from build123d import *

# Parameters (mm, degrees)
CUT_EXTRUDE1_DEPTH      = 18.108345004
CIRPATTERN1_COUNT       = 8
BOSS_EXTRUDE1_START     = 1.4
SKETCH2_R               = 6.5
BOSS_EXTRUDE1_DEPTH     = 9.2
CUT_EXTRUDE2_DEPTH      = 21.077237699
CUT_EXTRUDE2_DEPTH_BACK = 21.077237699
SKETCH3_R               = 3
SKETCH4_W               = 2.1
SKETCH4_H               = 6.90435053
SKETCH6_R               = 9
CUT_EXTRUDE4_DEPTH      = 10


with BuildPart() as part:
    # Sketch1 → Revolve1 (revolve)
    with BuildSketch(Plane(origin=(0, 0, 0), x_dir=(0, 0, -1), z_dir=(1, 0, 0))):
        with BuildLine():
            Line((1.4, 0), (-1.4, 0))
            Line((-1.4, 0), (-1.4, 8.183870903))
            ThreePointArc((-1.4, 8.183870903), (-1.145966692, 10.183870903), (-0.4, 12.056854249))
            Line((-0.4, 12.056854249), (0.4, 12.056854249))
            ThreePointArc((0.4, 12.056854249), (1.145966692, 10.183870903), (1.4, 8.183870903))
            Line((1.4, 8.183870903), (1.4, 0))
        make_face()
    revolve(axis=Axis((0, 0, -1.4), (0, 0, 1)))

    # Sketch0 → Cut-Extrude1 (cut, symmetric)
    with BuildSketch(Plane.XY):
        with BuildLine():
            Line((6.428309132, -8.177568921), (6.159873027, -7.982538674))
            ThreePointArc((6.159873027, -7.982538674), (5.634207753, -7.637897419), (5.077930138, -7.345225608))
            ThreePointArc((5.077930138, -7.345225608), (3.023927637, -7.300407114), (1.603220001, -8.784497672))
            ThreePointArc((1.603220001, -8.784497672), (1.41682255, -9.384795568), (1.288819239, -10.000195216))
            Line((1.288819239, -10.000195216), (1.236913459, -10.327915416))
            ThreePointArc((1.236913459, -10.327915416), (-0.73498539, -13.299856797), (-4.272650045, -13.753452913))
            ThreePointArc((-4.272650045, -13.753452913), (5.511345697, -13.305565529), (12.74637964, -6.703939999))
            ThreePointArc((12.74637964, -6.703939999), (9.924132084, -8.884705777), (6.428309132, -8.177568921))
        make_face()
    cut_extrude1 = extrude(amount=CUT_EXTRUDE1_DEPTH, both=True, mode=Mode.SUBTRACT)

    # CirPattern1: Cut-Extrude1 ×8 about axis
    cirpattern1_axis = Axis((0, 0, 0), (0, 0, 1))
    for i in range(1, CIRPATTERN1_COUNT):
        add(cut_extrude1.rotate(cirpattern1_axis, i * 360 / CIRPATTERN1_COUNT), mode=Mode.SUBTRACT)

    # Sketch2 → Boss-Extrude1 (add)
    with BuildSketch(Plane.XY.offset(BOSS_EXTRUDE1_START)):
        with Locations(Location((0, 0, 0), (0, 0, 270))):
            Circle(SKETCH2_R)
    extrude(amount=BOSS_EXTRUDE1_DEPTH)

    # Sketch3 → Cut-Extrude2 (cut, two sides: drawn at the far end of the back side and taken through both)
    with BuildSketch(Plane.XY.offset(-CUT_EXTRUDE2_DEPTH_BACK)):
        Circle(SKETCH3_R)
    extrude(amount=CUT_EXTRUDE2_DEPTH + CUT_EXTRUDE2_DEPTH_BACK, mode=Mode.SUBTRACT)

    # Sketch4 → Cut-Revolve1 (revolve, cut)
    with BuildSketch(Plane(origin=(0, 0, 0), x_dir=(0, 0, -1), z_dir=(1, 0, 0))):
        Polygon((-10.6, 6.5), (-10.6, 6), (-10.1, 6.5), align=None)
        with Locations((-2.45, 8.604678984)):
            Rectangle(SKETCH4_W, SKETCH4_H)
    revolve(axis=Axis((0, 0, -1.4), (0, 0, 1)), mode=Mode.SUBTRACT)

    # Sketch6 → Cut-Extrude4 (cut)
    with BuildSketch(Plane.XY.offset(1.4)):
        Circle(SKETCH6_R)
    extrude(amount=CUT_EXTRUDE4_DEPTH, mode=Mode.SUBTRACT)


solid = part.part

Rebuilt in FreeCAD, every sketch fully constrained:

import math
import FreeCAD as App
import Part
import Sketcher

V = App.Vector
Q = App.Units.Quantity


def add_polygon(sketch, points):
    """Adds a closed chain of lines whose ends are joined by coincident constraints."""
    first, n = sketch.GeometryCount, len(points)
    for a, b in zip(points, points[1:] + points[:1]):
        sketch.addGeometry(Part.LineSegment(App.Vector(*a, 0), App.Vector(*b, 0)), False)
    for i in range(n):
        sketch.addConstraint(Sketcher.Constraint("Coincident", first + i, 2, first + (i + 1) % n, 1))

doc = App.newDocument("Part")
body = doc.addObject("PartDesign::Body", "Body")

sketch1 = body.newObject("Sketcher::SketchObject", "Sketch")
sketch1.AttachmentSupport = (doc.getObject("YZ_Plane"), [""])
sketch1.MapMode = "FlatFace"
sketch1.addGeometry(Part.LineSegment(V(0, 1.4, 0), V(0, -1.4, 0)), False)
sketch1.addGeometry(Part.LineSegment(V(0, -1.4, 0), V(8.183871, -1.4, 0)), False)
sketch1.addGeometry(Part.ArcOfCircle(Part.Circle(V(8.183871, 6.6, 0), V(0, 0, 1), 8), math.radians(-90), math.radians(-61.044976)), False)
sketch1.addGeometry(Part.LineSegment(V(12.056854, -0.4, 0), V(12.056854, 0.4, 0)), False)
sketch1.addGeometry(Part.ArcOfCircle(Part.Circle(V(8.183871, -6.6, 0), V(0, 0, 1), 8), math.radians(61.044976), math.radians(90)), False)
sketch1.addGeometry(Part.LineSegment(V(8.183871, 1.4, 0), V(0, 1.4, 0)), False)
sketch1.addConstraint(Sketcher.Constraint("Coincident", 0, 2, 1, 1))
sketch1.addConstraint(Sketcher.Constraint("Tangent", 1, 2, 2, 1))
sketch1.addConstraint(Sketcher.Constraint("Coincident", 2, 2, 3, 1))
sketch1.addConstraint(Sketcher.Constraint("Coincident", 3, 2, 4, 1))
sketch1.addConstraint(Sketcher.Constraint("Tangent", 4, 2, 5, 1))
sketch1.addConstraint(Sketcher.Constraint("Coincident", 5, 2, 0, 1))
sketch1.addConstraint(Sketcher.Constraint("Vertical", 0))
sketch1.addConstraint(Sketcher.Constraint("Horizontal", 1))
sketch1.addConstraint(Sketcher.Constraint("Vertical", 3))
sketch1.addConstraint(Sketcher.Constraint("Horizontal", 5))
sketch1.addConstraint(Sketcher.Constraint("Equal", 2, 4))
sketch1.addConstraint(Sketcher.Constraint("Symmetric", 0, 2, 5, 2, -1, 1))
sketch1.addConstraint(Sketcher.Constraint("Vertical", 2, 3, 4, 3))
sketch1.addConstraint(Sketcher.Constraint("Radius", 2, Q("8 mm")))
sketch1.addConstraint(Sketcher.Constraint("DistanceY", 0, 2, 0, 1, Q("2.8 mm")))
sketch1.addConstraint(Sketcher.Constraint("DistanceY", 3, 1, 3, 2, Q("0.8 mm")))
sketch1.addConstraint(Sketcher.Constraint("DistanceX", 1, 1, 1, 2, Q("8.183871 mm")))
revolution = body.newObject("PartDesign::Revolution", "Revolution")
revolution.Profile = sketch1
revolution.ReferenceAxis = (sketch1, ["V_Axis"])
revolution.Angle = 360

sketch2 = body.newObject("Sketcher::SketchObject", "Sketch001")
sketch2.AttachmentSupport = (doc.getObject("XY_Plane"), [""])
sketch2.MapMode = "FlatFace"
sketch2.addGeometry(Part.LineSegment(V(6.428309, -8.177569, 0), V(6.159873, -7.982539, 0)), False)
sketch2.addGeometry(Part.ArcOfCircle(Part.Circle(V(2.309527, -13.282085, 0), V(0, 0, 1), 6.5506), math.radians(54), math.radians(65)), False)
sketch2.addGeometry(Part.ArcOfCircle(Part.Circle(V(4, -9.656854, 0), V(0, 0, 1), 2.5506), math.radians(65), math.radians(160)), False)
sketch2.addGeometry(Part.ArcOfCircle(Part.Circle(V(7.758771, -11.024935, 0), V(0, 0, 1), 6.5506), math.radians(160), math.radians(171)), False)
sketch2.addGeometry(Part.LineSegment(V(1.288819, -10.000195, 0), V(1.236913, -10.327915, 0)), False)
sketch2.addGeometry(Part.ArcOfCircle(Part.Circle(V(-3, -9.656854, 0), V(0, 0, 1), 4.289727), math.radians(-107.257939), math.radians(-9)), False)
sketch2.addGeometry(Part.ArcOfCircle(Part.Circle(V(0, 0, 0), V(0, 0, 1), 14.40184), math.radians(-107.257939), math.radians(-27.742061)), False)
sketch2.addGeometry(Part.ArcOfCircle(Part.Circle(V(8.949747, -4.707107, 0), V(0, 0, 1), 4.289727), math.radians(-126), math.radians(-27.742061)), False)
sketch2.addConstraint(Sketcher.Constraint("Tangent", 0, 2, 1, 1))
sketch2.addConstraint(Sketcher.Constraint("Tangent", 1, 2, 2, 1))
sketch2.addConstraint(Sketcher.Constraint("Tangent", 2, 2, 3, 1))
sketch2.addConstraint(Sketcher.Constraint("Tangent", 3, 2, 4, 1))
sketch2.addConstraint(Sketcher.Constraint("Tangent", 4, 2, 5, 2))
sketch2.addConstraint(Sketcher.Constraint("Tangent", 5, 1, 6, 1))
sketch2.addConstraint(Sketcher.Constraint("Tangent", 6, 2, 7, 2))
sketch2.addConstraint(Sketcher.Constraint("Tangent", 7, 1, 0, 1))
sketch2.addConstraint(Sketcher.Constraint("Coincident", 6, 3, -1, 1))
sketch2.addConstraint(Sketcher.Constraint("Equal", 1, 3))
sketch2.addConstraint(Sketcher.Constraint("Equal", 5, 7))
sketch2.addConstraint(Sketcher.Constraint("Horizontal", 2, 3, 5, 3))
sketch2.addConstraint(Sketcher.Constraint("Equal", 0, 4))
sketch2.addConstraint(Sketcher.Constraint("Angle", 0, Q("144 deg")))
sketch2.addConstraint(Sketcher.Constraint("Angle", 4, Q("-99 deg")))
sketch2.addConstraint(Sketcher.Constraint("DistanceX", -1, 1, 2, 3, Q("4 mm")))
sketch2.addConstraint(Sketcher.Constraint("DistanceX", 5, 3, -1, 1, Q("3 mm")))
sketch2.addConstraint(Sketcher.Constraint("Radius", 1, Q("6.5506 mm")))
sketch2.addConstraint(Sketcher.Constraint("Radius", 2, Q("2.5506 mm")))
sketch2.addConstraint(Sketcher.Constraint("Radius", 6, Q("14.40184 mm")))
sketch2.addConstraint(Sketcher.Constraint("Radius", 5, Q("4.289727 mm")))
pocket1 = body.newObject("PartDesign::Pocket", "Pocket")
pocket1.Profile = sketch2
pocket1.Length = 36.21669
pocket1.Midplane = True
doc.recompute()

polarpattern = body.newObject("PartDesign::PolarPattern", "PolarPattern")
polarpattern.Originals = [pocket1]
polarpattern.Axis = (doc.getObject("Z_Axis"), [""])
polarpattern.Angle = 360
polarpattern.Occurrences = 8
body.Tip = polarpattern

sketch3 = body.newObject("Sketcher::SketchObject", "Sketch002")
sketch3.AttachmentSupport = (doc.getObject("XY_Plane"), [""])
sketch3.MapMode = "FlatFace"
sketch3.AttachmentOffset = App.Placement(V(0, 0, 1.4), App.Rotation())
sketch3.addGeometry(Part.Circle(V(0, 0, 0), V(0, 0, 1), 6.5), False)
sketch3.addConstraint(Sketcher.Constraint("Coincident", 0, 3, -1, 1))
sketch3.addConstraint(Sketcher.Constraint("Diameter", 0, Q("13 mm")))
pad1 = body.newObject("PartDesign::Pad", "Pad")
pad1.Profile = sketch3
pad1.Length = 9.2

sketch4 = body.newObject("Sketcher::SketchObject", "Sketch003")
sketch4.AttachmentSupport = (doc.getObject("XY_Plane"), [""])
sketch4.MapMode = "FlatFace"
sketch4.addGeometry(Part.Circle(V(0, 0, 0), V(0, 0, 1), 3), False)
sketch4.addConstraint(Sketcher.Constraint("Coincident", 0, 3, -1, 1))
sketch4.addConstraint(Sketcher.Constraint("Diameter", 0, Q("6 mm")))
pocket2 = body.newObject("PartDesign::Pocket", "Pocket001")
pocket2.Profile = sketch4
pocket2.Type = "ThroughAll"
pocket2.Midplane = True

sketch5 = body.newObject("Sketcher::SketchObject", "Sketch004")
sketch5.AttachmentSupport = (doc.getObject("YZ_Plane"), [""])
sketch5.MapMode = "FlatFace"
add_polygon(sketch5, [(6.5, 10.6), (6, 10.6), (6.5, 10.1)])
add_polygon(sketch5, [(12.056854, 3.5), (5.152504, 3.5), (5.152504, 1.4), (12.056854, 1.4)])
sketch5.addConstraint(Sketcher.Constraint("Horizontal", 0))
sketch5.addConstraint(Sketcher.Constraint("Vertical", 2))
sketch5.addConstraint(Sketcher.Constraint("Horizontal", 3))
sketch5.addConstraint(Sketcher.Constraint("Vertical", 4))
sketch5.addConstraint(Sketcher.Constraint("Horizontal", 5))
sketch5.addConstraint(Sketcher.Constraint("Vertical", 6))
sketch5.addConstraint(Sketcher.Constraint("Equal", 0, 2))
sketch5.addConstraint(Sketcher.Constraint("DistanceX", 0, 2, 0, 1, Q("0.5 mm")))
sketch5.addConstraint(Sketcher.Constraint("DistanceY", 4, 2, 4, 1, Q("2.1 mm")))
sketch5.addConstraint(Sketcher.Constraint("DistanceX", -1, 1, 0, 2, Q("6 mm")))
sketch5.addConstraint(Sketcher.Constraint("DistanceY", -1, 1, 0, 2, Q("10.6 mm")))
sketch5.addConstraint(Sketcher.Constraint("DistanceY", -1, 1, 3, 2, Q("3.5 mm")))
sketch5.addConstraint(Sketcher.Constraint("DistanceX", 3, 2, 3, 1, Q("6.904351 mm")))
sketch5.addConstraint(Sketcher.Constraint("DistanceX", -1, 1, 3, 2, Q("5.152504 mm")))
groove = body.newObject("PartDesign::Groove", "Groove")
groove.Profile = sketch5
groove.ReferenceAxis = (sketch5, ["V_Axis"])
groove.Angle = 360

sketch6 = body.newObject("Sketcher::SketchObject", "Sketch005")
sketch6.AttachmentSupport = (doc.getObject("XY_Plane"), [""])
sketch6.MapMode = "FlatFace"
sketch6.AttachmentOffset = App.Placement(V(0, 0, 1.4), App.Rotation())
sketch6.addGeometry(Part.Circle(V(0, 0, 0), V(0, 0, 1), 9), False)
sketch6.addConstraint(Sketcher.Constraint("Coincident", 0, 3, -1, 1))
sketch6.addConstraint(Sketcher.Constraint("Diameter", 0, Q("18 mm")))
pocket3 = body.newObject("PartDesign::Pocket", "Pocket002")
pocket3.Profile = sketch6
pocket3.Length = 10
pocket3.Reversed = True

doc.recompute()
